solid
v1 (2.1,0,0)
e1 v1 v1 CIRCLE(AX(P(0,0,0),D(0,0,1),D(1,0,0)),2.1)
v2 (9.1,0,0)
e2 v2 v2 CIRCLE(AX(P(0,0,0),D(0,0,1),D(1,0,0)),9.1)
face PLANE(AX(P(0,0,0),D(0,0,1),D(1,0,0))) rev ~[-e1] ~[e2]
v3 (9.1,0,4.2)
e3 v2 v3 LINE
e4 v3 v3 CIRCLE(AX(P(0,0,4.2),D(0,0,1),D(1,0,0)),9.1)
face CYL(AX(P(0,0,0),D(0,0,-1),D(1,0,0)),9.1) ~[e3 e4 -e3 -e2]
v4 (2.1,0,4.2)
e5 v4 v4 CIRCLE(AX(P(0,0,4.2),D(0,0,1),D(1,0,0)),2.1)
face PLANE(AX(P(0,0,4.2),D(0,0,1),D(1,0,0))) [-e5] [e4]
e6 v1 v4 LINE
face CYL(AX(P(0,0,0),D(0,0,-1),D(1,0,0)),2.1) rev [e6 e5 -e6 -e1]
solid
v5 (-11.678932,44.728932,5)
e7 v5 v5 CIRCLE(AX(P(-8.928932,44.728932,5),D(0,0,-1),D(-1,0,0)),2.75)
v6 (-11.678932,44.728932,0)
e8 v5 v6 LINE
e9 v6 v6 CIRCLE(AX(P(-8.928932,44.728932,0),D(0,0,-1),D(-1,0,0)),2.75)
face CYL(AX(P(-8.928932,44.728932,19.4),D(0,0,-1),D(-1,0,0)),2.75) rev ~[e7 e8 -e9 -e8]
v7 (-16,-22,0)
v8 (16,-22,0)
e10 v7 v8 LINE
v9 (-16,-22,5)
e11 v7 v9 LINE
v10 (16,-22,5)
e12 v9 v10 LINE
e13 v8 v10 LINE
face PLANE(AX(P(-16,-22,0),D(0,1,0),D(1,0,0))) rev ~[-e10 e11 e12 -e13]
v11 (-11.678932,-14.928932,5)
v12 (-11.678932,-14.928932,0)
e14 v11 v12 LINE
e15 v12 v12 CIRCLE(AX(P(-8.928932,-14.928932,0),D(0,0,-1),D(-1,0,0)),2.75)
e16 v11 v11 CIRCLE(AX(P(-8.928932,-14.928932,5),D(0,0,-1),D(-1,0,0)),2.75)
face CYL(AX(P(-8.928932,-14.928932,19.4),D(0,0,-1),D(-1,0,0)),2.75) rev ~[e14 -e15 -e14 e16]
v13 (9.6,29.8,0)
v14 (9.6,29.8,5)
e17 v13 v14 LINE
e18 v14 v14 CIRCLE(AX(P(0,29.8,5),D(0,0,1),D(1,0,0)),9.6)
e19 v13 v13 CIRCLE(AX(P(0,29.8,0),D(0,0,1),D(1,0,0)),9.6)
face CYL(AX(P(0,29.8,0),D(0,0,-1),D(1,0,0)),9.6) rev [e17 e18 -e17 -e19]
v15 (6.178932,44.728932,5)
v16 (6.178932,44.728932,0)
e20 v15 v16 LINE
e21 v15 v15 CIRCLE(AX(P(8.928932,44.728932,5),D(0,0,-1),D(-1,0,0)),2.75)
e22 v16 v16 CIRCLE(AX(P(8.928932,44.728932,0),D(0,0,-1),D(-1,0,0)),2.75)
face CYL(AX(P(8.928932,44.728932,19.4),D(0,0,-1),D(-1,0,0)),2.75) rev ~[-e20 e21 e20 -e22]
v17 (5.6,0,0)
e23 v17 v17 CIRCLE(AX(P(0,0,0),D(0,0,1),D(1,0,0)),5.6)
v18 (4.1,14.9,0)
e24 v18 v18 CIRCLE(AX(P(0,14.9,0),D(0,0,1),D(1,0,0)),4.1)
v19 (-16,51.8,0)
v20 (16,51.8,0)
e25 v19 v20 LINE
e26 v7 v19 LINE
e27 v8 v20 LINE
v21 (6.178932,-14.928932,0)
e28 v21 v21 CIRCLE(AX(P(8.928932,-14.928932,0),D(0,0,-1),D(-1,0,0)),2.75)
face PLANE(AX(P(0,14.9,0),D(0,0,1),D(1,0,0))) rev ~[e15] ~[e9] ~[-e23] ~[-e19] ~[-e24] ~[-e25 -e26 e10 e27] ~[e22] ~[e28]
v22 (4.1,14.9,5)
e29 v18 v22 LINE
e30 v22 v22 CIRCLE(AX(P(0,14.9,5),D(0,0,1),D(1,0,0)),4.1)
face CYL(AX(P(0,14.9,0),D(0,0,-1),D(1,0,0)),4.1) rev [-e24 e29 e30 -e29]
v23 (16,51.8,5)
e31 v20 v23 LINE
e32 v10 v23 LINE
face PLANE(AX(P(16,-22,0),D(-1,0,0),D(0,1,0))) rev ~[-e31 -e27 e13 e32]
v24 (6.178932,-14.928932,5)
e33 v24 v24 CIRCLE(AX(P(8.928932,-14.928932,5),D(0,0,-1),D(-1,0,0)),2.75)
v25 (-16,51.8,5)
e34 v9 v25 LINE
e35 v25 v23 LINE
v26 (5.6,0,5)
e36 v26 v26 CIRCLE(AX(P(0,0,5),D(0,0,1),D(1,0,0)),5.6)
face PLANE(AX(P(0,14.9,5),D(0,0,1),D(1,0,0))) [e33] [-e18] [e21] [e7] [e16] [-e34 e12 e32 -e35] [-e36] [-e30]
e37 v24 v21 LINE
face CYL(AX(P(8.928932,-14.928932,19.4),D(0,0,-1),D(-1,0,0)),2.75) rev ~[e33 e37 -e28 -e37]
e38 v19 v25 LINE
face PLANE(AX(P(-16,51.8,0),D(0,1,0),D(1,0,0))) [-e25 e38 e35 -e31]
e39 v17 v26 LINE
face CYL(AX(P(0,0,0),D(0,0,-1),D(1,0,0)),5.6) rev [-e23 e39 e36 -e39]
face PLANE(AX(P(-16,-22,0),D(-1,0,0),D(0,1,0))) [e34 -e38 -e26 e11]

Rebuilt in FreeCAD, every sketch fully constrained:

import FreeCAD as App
import Part
import Sketcher
from FreeCAD import Vector
Q = App.Units.Quantity

doc = App.newDocument("Part")
body = doc.addObject("PartDesign::Body", "Body")

sketch1 = doc.addObject("Sketcher::SketchObject", "Sketch")
body.addObject(sketch1)
sketch1.AttachmentSupport = (doc.XY_Plane, [""])
sketch1.MapMode = "FlatFace"
sketch1.addGeometry([
    Part.LineSegment(Vector(-16, 51.8, 0), Vector(-16, -22, 0)),
    Part.LineSegment(Vector(-16, -22, 0), Vector(16, -22, 0)),
    Part.LineSegment(Vector(16, -22, 0), Vector(16, 51.8, 0)),
    Part.LineSegment(Vector(16, 51.8, 0), Vector(-16, 51.8, 0)),
    Part.Circle(Vector(0, 0, 0), Vector(0, 0, 1), 5.6),
    Part.Circle(Vector(0, 14.9, 0), Vector(0, 0, 1), 4.1),
    Part.Circle(Vector(0, 29.8, 0), Vector(0, 0, 1), 9.6),
], False)
sketch1.addConstraint([
    Sketcher.Constraint("Coincident", 0, 2, 1, 1),
    Sketcher.Constraint("Coincident", 1, 2, 2, 1),
    Sketcher.Constraint("Coincident", 2, 2, 3, 1),
    Sketcher.Constraint("Coincident", 3, 2, 0, 1),
    Sketcher.Constraint("Vertical", 0),
    Sketcher.Constraint("Horizontal", 1),
    Sketcher.Constraint("Vertical", 2),
    Sketcher.Constraint("Horizontal", 3),
    Sketcher.Constraint("Coincident", 4, 3, -1, 1),
    Sketcher.Constraint("PointOnObject", 5, 3, -2),
    Sketcher.Constraint("PointOnObject", 6, 3, -2),
    Sketcher.Constraint("Diameter", 4, Q("11.2 mm")),
    Sketcher.Constraint("Diameter", 5, Q("8.2 mm")),
    Sketcher.Constraint("Diameter", 6, Q("19.2 mm")),
    Sketcher.Constraint("DistanceX", 1, 1, 1, 2, Q("32 mm")),
    Sketcher.Constraint("DistanceY", 0, 2, 0, 1, Q("73.8 mm")),
    Sketcher.Constraint("DistanceX", 0, 2, -1, 1, Q("16 mm")),
    Sketcher.Constraint("DistanceY", 0, 2, -1, 1, Q("22 mm")),
    Sketcher.Constraint("DistanceY", 6, 3, 2, 2, Q("22 mm")),
    Sketcher.Constraint("DistanceY", -1, 1, 5, 3, Q("14.9 mm")),
])
pad1 = doc.addObject("PartDesign::Pad", "Pad")
body.addObject(pad1)
pad1.Profile = sketch1
pad1.Length = 5

sketch2 = doc.addObject("Sketcher::SketchObject", "Sketch001")
body.addObject(sketch2)
sketch2.AttachmentSupport = (doc.XY_Plane, [""])
sketch2.MapMode = "FlatFace"
sketch2.AttachmentOffset = App.Placement(Vector(0, 0, 5), App.Rotation())
sketch2.addGeometry([
    Part.Circle(Vector(-8.9, 44.7, 0), Vector(0, 0, 1), 2.8),
    Part.Circle(Vector(8.9, 44.7, 0), Vector(0, 0, 1), 2.8),
    Part.Circle(Vector(8.9, -14.9, 0), Vector(0, 0, 1), 2.8),
    Part.Circle(Vector(-8.9, -14.9, 0), Vector(0, 0, 1), 2.8),
], False)
sketch2.addConstraint([
    Sketcher.Constraint("Equal", 0, 1),
    Sketcher.Constraint("Equal", 1, 2),
    Sketcher.Constraint("Equal", 2, 3),
    Sketcher.Constraint("Symmetric", 0, 3, 1, 3, -2),
    Sketcher.Constraint("Symmetric", 2, 3, 3, 3, -2),
    Sketcher.Constraint("Vertical", 1, 3, 2, 3),
    Sketcher.Constraint("Diameter", 0, Q("5.5 mm")),
    Sketcher.Constraint("DistanceX", 0, 3, -1, 1, Q("8.928932 mm")),
    Sketcher.Constraint("DistanceY", -1, 1, 0, 3, Q("44.728932 mm")),
    Sketcher.Constraint("DistanceY", 2, 3, -1, 1, Q("14.928932 mm")),
])
doc.recompute()
hole = doc.addObject("PartDesign::Hole", "Hole")
body.addObject(hole)
hole.Profile = sketch2
hole.ThreadType = "None"
hole.Diameter = 5.5
hole.DepthType = "Dimension"
hole.Depth = 14.4
hole.DrillPoint = "Angled"
hole.DrillPointAngle = 118
body2 = doc.addObject("PartDesign::Body", "Body001")

sketch3 = doc.addObject("Sketcher::SketchObject", "Sketch002")
body2.addObject(sketch3)
sketch3.AttachmentSupport = (doc.getObject("XY_Plane001"), [""])
sketch3.MapMode = "FlatFace"
sketch3.addGeometry([
    Part.Circle(Vector(0, 0, 0), Vector(0, 0, 1), 9.1),
    Part.Circle(Vector(0, 0, 0), Vector(0, 0, 1), 2.1),
], False)
sketch3.addConstraint([
    Sketcher.Constraint("Coincident", 0, 3, -1, 1),
    Sketcher.Constraint("Coincident", 1, 3, -1, 1),
    Sketcher.Constraint("Diameter", 0, Q("18.2 mm")),
    Sketcher.Constraint("Diameter", 1, Q("4.2 mm")),
])
pad2 = doc.addObject("PartDesign::Pad", "Pad001")
body2.addObject(pad2)
pad2.Profile = sketch3
pad2.Length = 4.2

doc.recompute()
